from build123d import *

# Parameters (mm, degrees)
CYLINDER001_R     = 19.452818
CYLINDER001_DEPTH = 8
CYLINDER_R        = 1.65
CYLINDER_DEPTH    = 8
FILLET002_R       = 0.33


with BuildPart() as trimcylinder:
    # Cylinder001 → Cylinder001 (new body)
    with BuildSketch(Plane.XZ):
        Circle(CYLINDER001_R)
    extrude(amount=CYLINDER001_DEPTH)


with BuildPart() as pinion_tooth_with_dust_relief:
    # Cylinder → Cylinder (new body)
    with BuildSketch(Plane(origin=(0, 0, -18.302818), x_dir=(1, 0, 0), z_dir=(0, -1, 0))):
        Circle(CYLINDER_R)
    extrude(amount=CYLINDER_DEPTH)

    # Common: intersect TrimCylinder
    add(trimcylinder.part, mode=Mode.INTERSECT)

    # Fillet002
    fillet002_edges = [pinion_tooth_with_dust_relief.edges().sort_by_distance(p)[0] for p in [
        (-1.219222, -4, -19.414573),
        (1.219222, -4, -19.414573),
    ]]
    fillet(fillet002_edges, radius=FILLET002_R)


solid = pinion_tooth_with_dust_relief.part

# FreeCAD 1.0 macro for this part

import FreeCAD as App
import Part
import Sketcher

V = App.Vector


def edges_at(feature, points):
    """Names of the edges that pass closest to the given points."""
    edges = feature.Shape.Edges
    near = lambda p: min(range(len(edges)), key=lambda i: edges[i].distToShape(Part.Vertex(*p))[0])
    return sorted({f"Edge{near(p) + 1}" for p in points})

doc = App.newDocument("Part")
params = doc.addObject("Spreadsheet::Sheet", "Params")
for row, (alias, value) in enumerate([
    ("pad1_length", "8 mm"),
    ("sketch2_diameter", "3.3 mm"),
    ("pad2_length", "8 mm"),
    ("fillet_radius", "0.33 mm"),
], start=1):
    params.set(f"A{row}", alias)
    params.set(f"B{row}", "=" + value)
    params.setAlias(f"B{row}", alias)

body = doc.addObject("PartDesign::Body", "Body")

sketch1 = body.newObject("Sketcher::SketchObject", "Sketch")
sketch1.AttachmentSupport = (doc.getObject("XZ_Plane"), [""])
sketch1.MapMode = "FlatFace"
sketch1.addGeometry(Part.Circle(V(0, 0, 0), V(0, 0, 1), 19), False)
sketch1.addConstraint([
    Sketcher.Constraint("Coincident", 0, 3, -1, 1),
    Sketcher.Constraint("Diameter", 0, 38.905636),
])
pad1 = body.newObject("PartDesign::Pad", "Pad")
pad1.Profile = sketch1
pad1.setExpression("Length", "Params.pad1_length")
body2 = doc.addObject("PartDesign::Body", "Body001")

sketch2 = body2.newObject("Sketcher::SketchObject", "Sketch001")
sketch2.AttachmentSupport = (doc.getObject("XZ_Plane001"), [""])
sketch2.MapMode = "FlatFace"
sketch2.addGeometry(Part.Circle(V(0, -18.3, 0), V(0, 0, 1), 1.6), False)
sketch2.addConstraint([
    Sketcher.Constraint("PointOnObject", 0, 3, -2),
    Sketcher.Constraint("Diameter", 0, 3.3),
    Sketcher.Constraint("DistanceY", 0, 3, -1, 1, 18.302818),
])
sketch2.setExpression("Constraints[1]", "Params.sketch2_diameter")
pad2 = body2.newObject("PartDesign::Pad", "Pad001")
pad2.Profile = sketch2
pad2.setExpression("Length", "Params.pad2_length")
doc.recompute()

boolean = body2.newObject("PartDesign::Boolean", "Boolean")
boolean.Type = "Common"
boolean.addObjects([body])
doc.recompute()

fillet = body2.newObject("PartDesign::Fillet", "Fillet")
fillet.Base = (boolean, edges_at(boolean, [(-1.219, -4, -19.415), (1.219, -4, -19.415)]))
fillet.setExpression("Radius", "Params.fillet_radius")

doc.recompute()
